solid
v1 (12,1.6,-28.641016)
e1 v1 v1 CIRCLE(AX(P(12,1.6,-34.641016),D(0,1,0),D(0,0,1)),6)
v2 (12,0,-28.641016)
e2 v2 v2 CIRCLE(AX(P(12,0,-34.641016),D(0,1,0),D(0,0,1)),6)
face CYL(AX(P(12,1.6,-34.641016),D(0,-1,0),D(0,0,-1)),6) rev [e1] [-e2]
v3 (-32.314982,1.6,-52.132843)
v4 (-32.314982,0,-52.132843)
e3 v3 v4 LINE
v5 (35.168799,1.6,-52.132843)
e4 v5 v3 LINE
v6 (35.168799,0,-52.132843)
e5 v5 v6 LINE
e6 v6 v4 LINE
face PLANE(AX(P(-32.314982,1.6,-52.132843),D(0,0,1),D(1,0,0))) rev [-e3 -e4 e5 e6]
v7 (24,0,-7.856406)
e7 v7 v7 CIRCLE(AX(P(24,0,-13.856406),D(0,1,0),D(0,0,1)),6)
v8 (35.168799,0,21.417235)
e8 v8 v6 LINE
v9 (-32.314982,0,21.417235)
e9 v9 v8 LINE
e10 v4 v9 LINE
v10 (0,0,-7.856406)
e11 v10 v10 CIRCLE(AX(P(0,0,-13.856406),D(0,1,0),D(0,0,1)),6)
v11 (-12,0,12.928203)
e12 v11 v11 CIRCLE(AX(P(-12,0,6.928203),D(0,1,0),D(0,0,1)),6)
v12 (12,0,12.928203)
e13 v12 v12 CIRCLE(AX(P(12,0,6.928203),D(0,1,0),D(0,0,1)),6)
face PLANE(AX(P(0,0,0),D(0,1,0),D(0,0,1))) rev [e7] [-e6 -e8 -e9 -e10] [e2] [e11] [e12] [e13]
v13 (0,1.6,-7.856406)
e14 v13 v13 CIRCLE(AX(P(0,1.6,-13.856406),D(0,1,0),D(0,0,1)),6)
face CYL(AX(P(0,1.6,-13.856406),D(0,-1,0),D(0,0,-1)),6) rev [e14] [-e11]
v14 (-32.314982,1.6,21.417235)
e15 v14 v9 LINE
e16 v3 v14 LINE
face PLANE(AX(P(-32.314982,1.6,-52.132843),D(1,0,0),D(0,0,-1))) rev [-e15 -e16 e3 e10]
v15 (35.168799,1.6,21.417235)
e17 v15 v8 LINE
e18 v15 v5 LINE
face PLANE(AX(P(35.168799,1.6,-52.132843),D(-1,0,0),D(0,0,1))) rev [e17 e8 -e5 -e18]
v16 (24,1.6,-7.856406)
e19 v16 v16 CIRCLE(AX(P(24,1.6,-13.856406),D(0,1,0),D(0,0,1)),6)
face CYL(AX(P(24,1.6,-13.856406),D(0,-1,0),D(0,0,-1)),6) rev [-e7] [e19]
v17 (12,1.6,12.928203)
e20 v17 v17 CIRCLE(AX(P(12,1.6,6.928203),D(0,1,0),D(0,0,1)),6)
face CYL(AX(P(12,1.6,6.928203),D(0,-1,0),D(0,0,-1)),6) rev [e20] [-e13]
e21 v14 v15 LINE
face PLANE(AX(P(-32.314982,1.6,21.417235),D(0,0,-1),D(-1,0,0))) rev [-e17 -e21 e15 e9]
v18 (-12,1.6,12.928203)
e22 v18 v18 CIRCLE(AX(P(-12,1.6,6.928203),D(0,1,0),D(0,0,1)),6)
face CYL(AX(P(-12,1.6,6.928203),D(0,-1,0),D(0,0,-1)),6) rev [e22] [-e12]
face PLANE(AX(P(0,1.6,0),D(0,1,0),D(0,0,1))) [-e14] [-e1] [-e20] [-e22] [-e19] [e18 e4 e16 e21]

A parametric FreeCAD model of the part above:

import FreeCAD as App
import Part
import Sketcher
from FreeCAD import Vector


def add_polygon(sketch, points):
    """Adds a closed chain of lines whose ends are joined by coincident constraints."""
    first, n = sketch.GeometryCount, len(points)
    for a, b in zip(points, points[1:] + points[:1]):
        sketch.addGeometry(Part.LineSegment(App.Vector(*a, 0), App.Vector(*b, 0)), False)
    for i in range(n):
        sketch.addConstraint(Sketcher.Constraint("Coincident", first + i, 2, first + (i + 1) % n, 1))

doc = App.newDocument("Part")
body = doc.addObject("PartDesign::Body", "Body")

sketch1 = doc.addObject("Sketcher::SketchObject", "Sketch")
body.addObject(sketch1)
sketch1.AttachmentSupport = (doc.XZ_Plane, [""])
sketch1.MapMode = "FlatFace"
add_polygon(sketch1, [(-32, -52), (-32, 21), (35, 21), (35, -52)])
sketch1.addGeometry(Part.Circle(Vector(-12, 7, 0), Vector(0, 0, 1), 6), False)
sketch1.addGeometry(Part.Circle(Vector(12, 7, 0), Vector(0, 0, 1), 6), False)
sketch1.addGeometry(Part.Circle(Vector(0, -14, 0), Vector(0, 0, 1), 6), False)
sketch1.addGeometry(Part.Circle(Vector(24, -14, 0), Vector(0, 0, 1), 6), False)
sketch1.addGeometry(Part.Circle(Vector(12, -35, 0), Vector(0, 0, 1), 6), False)
sketch1.addConstraint(Sketcher.Constraint("Vertical", 0))
sketch1.addConstraint(Sketcher.Constraint("Horizontal", 1))
sketch1.addConstraint(Sketcher.Constraint("Vertical", 2))
sketch1.addConstraint(Sketcher.Constraint("Horizontal", 3))
sketch1.addConstraint(Sketcher.Constraint("Equal", 4, 5))
sketch1.addConstraint(Sketcher.Constraint("Equal", 5, 6))
sketch1.addConstraint(Sketcher.Constraint("Equal", 6, 7))
sketch1.addConstraint(Sketcher.Constraint("Equal", 7, 8))
sketch1.addConstraint(Sketcher.Constraint("Symmetric", 4, 3, 5, 3, -2))
sketch1.addConstraint(Sketcher.Constraint("PointOnObject", 6, 3, -2))
sketch1.addConstraint(Sketcher.Constraint("Horizontal", 6, 3, 7, 3))
sketch1.addConstraint(Sketcher.Constraint("Vertical", 5, 3, 8, 3))
sketch1.addConstraint(Sketcher.Constraint("Diameter", 4, 12.0))
sketch1.addConstraint(Sketcher.Constraint("DistanceX", 4, 3, -1, 1, 12.0))
sketch1.addConstraint(Sketcher.Constraint("DistanceX", -1, 1, 7, 3, 24.0))
sketch1.addConstraint(Sketcher.Constraint("DistanceX", 1, 1, 1, 2, 67.483782))
sketch1.addConstraint(Sketcher.Constraint("DistanceY", 0, 1, 0, 2, 73.550079))
sketch1.addConstraint(Sketcher.Constraint("DistanceX", -1, 1, 1, 2, 35.168799))
sketch1.addConstraint(Sketcher.Constraint("DistanceY", 6, 3, 4, 3, 20.78461))
sketch1.addConstraint(Sketcher.Constraint("DistanceY", 8, 3, 6, 3, 20.78461))
sketch1.addConstraint(Sketcher.Constraint("DistanceY", 6, 3, 0, 2, 35.273642))
sketch1.addConstraint(Sketcher.Constraint("DistanceY", -1, 1, 4, 3, 6.928203))
pad1 = doc.addObject("PartDesign::Pad", "Pad")
body.addObject(pad1)
pad1.Profile = sketch1
pad1.Length = 1.6
pad1.Reversed = True

doc.recompute()
